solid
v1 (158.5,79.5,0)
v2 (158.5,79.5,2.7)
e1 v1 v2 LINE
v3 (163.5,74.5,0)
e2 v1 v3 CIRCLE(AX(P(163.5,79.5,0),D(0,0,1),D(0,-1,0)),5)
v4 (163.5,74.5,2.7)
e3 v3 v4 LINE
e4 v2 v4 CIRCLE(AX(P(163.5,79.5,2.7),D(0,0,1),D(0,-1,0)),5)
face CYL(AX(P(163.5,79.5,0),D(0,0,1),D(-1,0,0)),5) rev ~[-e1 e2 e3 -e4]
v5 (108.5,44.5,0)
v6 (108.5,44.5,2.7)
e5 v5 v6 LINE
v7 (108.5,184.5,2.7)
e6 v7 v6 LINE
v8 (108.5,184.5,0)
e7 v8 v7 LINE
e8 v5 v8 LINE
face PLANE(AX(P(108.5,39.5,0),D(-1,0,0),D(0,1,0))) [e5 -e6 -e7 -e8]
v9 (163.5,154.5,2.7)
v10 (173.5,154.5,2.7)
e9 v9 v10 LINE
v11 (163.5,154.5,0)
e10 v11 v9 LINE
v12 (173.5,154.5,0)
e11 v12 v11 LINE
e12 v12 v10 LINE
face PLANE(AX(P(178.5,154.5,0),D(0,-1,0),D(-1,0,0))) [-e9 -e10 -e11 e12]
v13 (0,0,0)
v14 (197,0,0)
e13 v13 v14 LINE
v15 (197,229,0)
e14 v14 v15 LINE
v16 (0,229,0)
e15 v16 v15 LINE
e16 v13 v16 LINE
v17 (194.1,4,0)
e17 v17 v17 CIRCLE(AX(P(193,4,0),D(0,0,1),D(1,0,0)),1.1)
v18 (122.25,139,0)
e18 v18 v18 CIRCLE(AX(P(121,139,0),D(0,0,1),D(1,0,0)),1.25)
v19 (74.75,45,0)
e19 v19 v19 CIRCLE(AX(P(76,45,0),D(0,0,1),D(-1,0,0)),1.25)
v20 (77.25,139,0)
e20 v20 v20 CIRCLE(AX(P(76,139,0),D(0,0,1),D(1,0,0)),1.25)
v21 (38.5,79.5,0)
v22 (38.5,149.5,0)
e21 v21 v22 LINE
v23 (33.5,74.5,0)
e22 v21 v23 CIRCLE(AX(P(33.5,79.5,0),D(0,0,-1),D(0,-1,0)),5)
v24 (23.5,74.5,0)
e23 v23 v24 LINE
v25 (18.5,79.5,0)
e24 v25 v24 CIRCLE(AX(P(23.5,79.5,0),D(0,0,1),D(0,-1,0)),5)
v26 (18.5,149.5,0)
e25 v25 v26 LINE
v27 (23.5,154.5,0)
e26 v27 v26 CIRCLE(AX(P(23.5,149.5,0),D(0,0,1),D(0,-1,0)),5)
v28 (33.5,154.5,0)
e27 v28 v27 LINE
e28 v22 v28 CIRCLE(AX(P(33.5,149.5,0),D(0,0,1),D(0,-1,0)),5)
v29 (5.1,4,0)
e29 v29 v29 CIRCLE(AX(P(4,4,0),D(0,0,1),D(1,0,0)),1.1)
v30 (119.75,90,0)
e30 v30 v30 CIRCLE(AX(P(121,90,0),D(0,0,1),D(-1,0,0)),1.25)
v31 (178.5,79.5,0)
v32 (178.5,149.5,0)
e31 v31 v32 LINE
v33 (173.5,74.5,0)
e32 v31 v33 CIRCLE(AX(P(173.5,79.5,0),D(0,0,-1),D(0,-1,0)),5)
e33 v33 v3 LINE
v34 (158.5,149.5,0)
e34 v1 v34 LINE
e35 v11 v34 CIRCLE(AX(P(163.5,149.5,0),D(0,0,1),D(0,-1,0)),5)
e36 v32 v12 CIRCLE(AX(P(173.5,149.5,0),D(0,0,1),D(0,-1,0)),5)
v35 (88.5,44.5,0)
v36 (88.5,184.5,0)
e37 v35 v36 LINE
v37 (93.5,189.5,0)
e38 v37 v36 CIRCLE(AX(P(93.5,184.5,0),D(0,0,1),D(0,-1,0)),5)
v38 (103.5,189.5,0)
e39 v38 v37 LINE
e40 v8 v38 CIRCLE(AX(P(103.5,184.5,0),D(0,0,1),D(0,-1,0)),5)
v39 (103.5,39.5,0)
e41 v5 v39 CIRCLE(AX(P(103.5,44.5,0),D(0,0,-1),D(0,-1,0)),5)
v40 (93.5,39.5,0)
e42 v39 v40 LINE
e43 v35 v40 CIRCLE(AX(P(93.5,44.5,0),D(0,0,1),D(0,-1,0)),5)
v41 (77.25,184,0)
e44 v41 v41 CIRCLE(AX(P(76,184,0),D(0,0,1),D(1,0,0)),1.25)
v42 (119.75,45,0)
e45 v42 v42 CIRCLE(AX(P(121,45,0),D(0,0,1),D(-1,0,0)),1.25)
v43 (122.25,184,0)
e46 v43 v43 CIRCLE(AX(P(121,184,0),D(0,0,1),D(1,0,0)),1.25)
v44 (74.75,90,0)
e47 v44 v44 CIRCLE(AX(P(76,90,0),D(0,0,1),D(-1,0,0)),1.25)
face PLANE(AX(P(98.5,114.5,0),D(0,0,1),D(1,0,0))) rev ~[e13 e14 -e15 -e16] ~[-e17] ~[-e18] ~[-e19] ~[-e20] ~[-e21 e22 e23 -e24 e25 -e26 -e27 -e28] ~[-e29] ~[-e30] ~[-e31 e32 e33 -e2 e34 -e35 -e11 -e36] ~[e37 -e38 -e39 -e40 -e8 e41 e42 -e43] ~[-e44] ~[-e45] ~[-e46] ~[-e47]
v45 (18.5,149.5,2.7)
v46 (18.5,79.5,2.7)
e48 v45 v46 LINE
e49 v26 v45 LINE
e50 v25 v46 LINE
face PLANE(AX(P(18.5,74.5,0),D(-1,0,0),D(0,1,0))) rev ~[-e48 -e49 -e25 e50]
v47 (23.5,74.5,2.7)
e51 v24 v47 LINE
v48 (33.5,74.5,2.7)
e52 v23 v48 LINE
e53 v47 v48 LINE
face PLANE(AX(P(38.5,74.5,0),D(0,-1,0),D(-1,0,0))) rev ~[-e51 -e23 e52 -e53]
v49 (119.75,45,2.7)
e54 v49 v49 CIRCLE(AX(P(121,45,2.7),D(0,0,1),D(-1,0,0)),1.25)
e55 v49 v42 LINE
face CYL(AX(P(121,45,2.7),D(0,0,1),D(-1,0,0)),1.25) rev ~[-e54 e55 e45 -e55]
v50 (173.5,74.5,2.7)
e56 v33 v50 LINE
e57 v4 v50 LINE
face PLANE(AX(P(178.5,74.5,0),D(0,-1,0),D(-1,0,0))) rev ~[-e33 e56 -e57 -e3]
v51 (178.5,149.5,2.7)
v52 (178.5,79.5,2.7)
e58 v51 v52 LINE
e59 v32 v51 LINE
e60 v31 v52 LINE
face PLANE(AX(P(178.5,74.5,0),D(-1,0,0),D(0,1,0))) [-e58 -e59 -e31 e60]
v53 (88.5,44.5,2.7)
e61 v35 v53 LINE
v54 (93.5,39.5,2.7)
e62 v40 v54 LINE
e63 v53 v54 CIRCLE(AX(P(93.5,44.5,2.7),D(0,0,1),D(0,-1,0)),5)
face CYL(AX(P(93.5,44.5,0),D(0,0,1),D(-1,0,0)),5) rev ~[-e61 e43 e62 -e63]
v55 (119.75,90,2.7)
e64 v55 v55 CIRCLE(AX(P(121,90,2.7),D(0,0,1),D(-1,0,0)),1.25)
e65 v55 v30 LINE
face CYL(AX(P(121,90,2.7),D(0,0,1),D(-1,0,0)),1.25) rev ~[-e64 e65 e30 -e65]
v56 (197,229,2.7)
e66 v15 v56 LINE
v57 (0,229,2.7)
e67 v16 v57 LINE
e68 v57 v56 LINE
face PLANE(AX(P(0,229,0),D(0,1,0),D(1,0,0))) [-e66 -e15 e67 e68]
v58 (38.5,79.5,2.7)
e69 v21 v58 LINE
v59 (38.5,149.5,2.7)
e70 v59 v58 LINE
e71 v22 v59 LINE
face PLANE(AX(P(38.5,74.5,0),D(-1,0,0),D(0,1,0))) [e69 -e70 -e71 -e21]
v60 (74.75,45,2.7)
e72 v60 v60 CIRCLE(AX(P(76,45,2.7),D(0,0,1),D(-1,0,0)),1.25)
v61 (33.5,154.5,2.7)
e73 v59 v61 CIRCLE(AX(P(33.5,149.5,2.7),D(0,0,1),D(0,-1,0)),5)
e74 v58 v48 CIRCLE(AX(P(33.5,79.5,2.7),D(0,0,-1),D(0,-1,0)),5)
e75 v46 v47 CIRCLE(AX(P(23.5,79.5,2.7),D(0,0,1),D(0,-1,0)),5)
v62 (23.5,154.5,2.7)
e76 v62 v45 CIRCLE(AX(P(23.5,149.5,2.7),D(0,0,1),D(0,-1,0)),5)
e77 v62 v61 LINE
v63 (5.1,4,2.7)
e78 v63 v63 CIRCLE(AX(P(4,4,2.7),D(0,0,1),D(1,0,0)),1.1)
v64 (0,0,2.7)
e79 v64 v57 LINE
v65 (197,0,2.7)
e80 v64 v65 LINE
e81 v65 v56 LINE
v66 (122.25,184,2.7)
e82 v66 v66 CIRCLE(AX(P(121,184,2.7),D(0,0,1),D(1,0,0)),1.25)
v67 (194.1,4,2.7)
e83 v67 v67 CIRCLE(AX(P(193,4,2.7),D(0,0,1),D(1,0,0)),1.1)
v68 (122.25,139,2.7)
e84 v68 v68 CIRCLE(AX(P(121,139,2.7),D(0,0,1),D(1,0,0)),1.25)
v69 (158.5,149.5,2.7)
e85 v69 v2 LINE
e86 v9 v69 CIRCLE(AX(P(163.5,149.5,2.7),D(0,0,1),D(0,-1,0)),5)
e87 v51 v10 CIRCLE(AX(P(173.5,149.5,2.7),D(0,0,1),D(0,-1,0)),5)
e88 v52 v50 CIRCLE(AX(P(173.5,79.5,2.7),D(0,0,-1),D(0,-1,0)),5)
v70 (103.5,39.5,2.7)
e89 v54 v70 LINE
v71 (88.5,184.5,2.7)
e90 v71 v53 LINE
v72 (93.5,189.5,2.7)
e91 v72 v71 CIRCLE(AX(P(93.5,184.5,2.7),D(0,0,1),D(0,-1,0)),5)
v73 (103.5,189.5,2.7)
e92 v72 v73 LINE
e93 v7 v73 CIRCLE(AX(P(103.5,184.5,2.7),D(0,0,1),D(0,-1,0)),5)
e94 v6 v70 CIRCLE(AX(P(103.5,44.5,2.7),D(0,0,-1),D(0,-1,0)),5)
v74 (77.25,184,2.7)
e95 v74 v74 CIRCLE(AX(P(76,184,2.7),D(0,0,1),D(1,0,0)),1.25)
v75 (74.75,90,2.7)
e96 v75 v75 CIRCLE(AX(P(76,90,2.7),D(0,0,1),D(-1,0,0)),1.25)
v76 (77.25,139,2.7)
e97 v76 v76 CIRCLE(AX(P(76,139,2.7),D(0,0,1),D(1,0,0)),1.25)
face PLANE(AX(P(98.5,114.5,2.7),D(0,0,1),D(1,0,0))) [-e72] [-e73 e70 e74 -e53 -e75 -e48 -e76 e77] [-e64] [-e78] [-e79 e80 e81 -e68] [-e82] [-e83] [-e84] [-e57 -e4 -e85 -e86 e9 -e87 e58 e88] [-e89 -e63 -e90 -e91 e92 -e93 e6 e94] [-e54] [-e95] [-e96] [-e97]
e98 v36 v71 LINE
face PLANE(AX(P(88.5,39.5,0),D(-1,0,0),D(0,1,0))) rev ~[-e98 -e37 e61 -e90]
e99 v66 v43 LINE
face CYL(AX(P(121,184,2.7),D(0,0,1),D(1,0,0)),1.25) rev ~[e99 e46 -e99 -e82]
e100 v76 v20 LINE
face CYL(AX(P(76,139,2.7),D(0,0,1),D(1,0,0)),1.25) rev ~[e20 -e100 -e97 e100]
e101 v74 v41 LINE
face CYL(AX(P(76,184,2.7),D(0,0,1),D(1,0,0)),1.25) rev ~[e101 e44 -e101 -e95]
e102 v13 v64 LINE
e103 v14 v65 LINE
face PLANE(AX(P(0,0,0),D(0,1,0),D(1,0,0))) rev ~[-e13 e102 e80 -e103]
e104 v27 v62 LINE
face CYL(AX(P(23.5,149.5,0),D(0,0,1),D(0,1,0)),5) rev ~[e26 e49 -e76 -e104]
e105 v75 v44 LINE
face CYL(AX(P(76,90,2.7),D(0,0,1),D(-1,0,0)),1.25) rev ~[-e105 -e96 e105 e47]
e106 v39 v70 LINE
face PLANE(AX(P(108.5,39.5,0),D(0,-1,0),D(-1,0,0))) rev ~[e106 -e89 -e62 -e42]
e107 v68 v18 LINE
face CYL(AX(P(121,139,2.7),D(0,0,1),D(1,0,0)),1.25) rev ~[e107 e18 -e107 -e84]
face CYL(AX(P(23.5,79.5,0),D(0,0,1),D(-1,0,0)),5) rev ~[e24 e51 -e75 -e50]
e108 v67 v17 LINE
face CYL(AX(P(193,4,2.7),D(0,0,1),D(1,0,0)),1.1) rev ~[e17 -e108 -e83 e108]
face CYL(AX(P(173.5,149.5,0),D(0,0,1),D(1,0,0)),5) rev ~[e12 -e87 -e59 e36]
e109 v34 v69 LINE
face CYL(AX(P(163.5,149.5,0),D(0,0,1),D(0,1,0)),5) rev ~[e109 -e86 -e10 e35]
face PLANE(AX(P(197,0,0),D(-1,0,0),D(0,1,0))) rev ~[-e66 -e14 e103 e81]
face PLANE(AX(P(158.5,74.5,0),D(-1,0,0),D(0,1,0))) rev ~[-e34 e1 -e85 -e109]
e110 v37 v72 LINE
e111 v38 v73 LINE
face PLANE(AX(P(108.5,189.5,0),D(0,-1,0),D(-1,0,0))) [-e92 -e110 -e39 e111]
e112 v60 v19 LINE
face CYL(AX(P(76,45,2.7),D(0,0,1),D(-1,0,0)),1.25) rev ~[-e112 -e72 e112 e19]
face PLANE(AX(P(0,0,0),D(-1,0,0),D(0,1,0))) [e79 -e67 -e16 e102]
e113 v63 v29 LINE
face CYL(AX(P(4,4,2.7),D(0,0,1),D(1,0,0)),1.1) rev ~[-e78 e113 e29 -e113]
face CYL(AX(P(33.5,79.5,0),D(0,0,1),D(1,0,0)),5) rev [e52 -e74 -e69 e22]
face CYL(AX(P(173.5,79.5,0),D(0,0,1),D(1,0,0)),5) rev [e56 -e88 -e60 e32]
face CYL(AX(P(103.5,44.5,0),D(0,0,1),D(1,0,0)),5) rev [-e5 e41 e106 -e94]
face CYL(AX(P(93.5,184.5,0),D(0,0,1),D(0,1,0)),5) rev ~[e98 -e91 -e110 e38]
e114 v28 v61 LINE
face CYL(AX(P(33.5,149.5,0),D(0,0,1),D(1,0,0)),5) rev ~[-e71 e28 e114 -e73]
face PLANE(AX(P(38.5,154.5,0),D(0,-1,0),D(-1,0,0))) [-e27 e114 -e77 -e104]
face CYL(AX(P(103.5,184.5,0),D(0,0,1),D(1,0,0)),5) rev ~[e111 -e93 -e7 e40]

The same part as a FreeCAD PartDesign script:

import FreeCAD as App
import Part
import Sketcher
from FreeCAD import Vector
Q = App.Units.Quantity


def edges_at(feature, points):
    """Names of the edges that pass closest to the given points."""
    edges = feature.Shape.Edges
    near = lambda p: min(range(len(edges)), key=lambda i: edges[i].distToShape(Part.Vertex(*p))[0])
    return sorted({f"Edge{near(p) + 1}" for p in points})

doc = App.newDocument("Part")
body = doc.addObject("PartDesign::Body", "Body")

# Sketch on XY plane
sketch1 = body.newObject("Sketcher::SketchObject", "Sketch")
sketch1.AttachmentSupport = (doc.getObject("XY_Plane"), [""])
sketch1.MapMode = "FlatFace"
sketch1.addGeometry([
    Part.LineSegment(Vector(0, 229, 0), Vector(0, 0, 0)),
    Part.LineSegment(Vector(0, 0, 0), Vector(197, 0, 0)),
    Part.LineSegment(Vector(197, 0, 0), Vector(197, 229, 0)),
    Part.LineSegment(Vector(197, 229, 0), Vector(0, 229, 0)),
], False)
sketch1.addConstraint([
    Sketcher.Constraint("Coincident", 0, 2, 1, 1),
    Sketcher.Constraint("Coincident", 1, 2, 2, 1),
    Sketcher.Constraint("Coincident", 2, 2, 3, 1),
    Sketcher.Constraint("Coincident", 3, 2, 0, 1),
    Sketcher.Constraint("Vertical", 0),
    Sketcher.Constraint("Horizontal", 1),
    Sketcher.Constraint("Vertical", 2),
    Sketcher.Constraint("Horizontal", 3),
    Sketcher.Constraint("Coincident", 0, 2, -1, 1),
    Sketcher.Constraint("DistanceX", 1, 1, 1, 2, Q("197 mm")),
    Sketcher.Constraint("DistanceY", 0, 2, 0, 1, Q("229 mm")),
])
pad1 = body.newObject("PartDesign::Pad", "Pad")
pad1.Profile = sketch1
pad1.Length = 2.7

# Sketch on XY plane
sketch2 = body.newObject("Sketcher::SketchObject", "Sketch001")
sketch2.AttachmentSupport = (doc.getObject("XY_Plane"), [""])
sketch2.MapMode = "FlatFace"
sketch2.AttachmentOffset = App.Placement(Vector(0, 0, 2.7), App.Rotation())
sketch2.addGeometry([
    Part.Circle(Vector(4, 4, 0), Vector(0, 0, 1), 1.1),
    Part.Circle(Vector(193, 4, 0), Vector(0, 0, 1), 1.1),
], False)
sketch2.addConstraint([
    Sketcher.Constraint("Equal", 0, 1),
    Sketcher.Constraint("Horizontal", 0, 3, 1, 3),
    Sketcher.Constraint("Diameter", 0, Q("2.2 mm")),
    Sketcher.Constraint("DistanceX", -1, 1, 0, 3, Q("4 mm")),
    Sketcher.Constraint("DistanceY", -1, 1, 0, 3, Q("4 mm")),
    Sketcher.Constraint("DistanceX", -1, 1, 1, 3, Q("193 mm")),
])
pocket1 = body.newObject("PartDesign::Pocket", "Pocket")
pocket1.Profile = sketch2
pocket1.Length = 2.85

# Sketch on XY plane
sketch3 = body.newObject("Sketcher::SketchObject", "Sketch002")
sketch3.AttachmentSupport = (doc.getObject("XY_Plane"), [""])
sketch3.MapMode = "FlatFace"
sketch3.addGeometry([
    Part.LineSegment(Vector(178, 154, 0), Vector(178, 74, 0)),  # 0
    Part.LineSegment(Vector(178, 74, 0), Vector(158, 74, 0)),  # 1
    Part.LineSegment(Vector(158, 74, 0), Vector(158, 154, 0)),  # 2
    Part.LineSegment(Vector(158, 154, 0), Vector(178, 154, 0)),  # 3
    Part.LineSegment(Vector(38, 154, 0), Vector(38, 74, 0)),  # 4
    Part.LineSegment(Vector(38, 74, 0), Vector(18, 74, 0)),  # 5
    Part.LineSegment(Vector(18, 74, 0), Vector(18, 154, 0)),  # 6
    Part.LineSegment(Vector(18, 154, 0), Vector(38, 154, 0)),  # 7
    Part.LineSegment(Vector(108, 190, 0), Vector(108, 40, 0)),  # 8
    Part.LineSegment(Vector(108, 40, 0), Vector(88, 40, 0)),  # 9
    Part.LineSegment(Vector(88, 40, 0), Vector(88, 190, 0)),  # 10
    Part.LineSegment(Vector(88, 190, 0), Vector(108, 190, 0)),  # 11
], False)
sketch3.addConstraint([
    Sketcher.Constraint("Coincident", 0, 2, 1, 1),
    Sketcher.Constraint("Coincident", 1, 2, 2, 1),
    Sketcher.Constraint("Coincident", 2, 2, 3, 1),
    Sketcher.Constraint("Coincident", 3, 2, 0, 1),
    Sketcher.Constraint("Coincident", 4, 2, 5, 1),
    Sketcher.Constraint("Coincident", 5, 2, 6, 1),
    Sketcher.Constraint("Coincident", 6, 2, 7, 1),
    Sketcher.Constraint("Coincident", 7, 2, 4, 1),
    Sketcher.Constraint("Coincident", 8, 2, 9, 1),
    Sketcher.Constraint("Coincident", 9, 2, 10, 1),
    Sketcher.Constraint("Coincident", 10, 2, 11, 1),
    Sketcher.Constraint("Coincident", 11, 2, 8, 1),
    Sketcher.Constraint("Vertical", 0),
    Sketcher.Constraint("Horizontal", 1),
    Sketcher.Constraint("Vertical", 2),
    Sketcher.Constraint("Horizontal", 3),
    Sketcher.Constraint("Vertical", 4),
    Sketcher.Constraint("Horizontal", 5),
    Sketcher.Constraint("Vertical", 6),
    Sketcher.Constraint("Horizontal", 7),
    Sketcher.Constraint("Vertical", 8),
    Sketcher.Constraint("Horizontal", 9),
    Sketcher.Constraint("Vertical", 10),
    Sketcher.Constraint("Horizontal", 11),
    Sketcher.Constraint("Horizontal", 1, 2, 4, 2),
    Sketcher.Constraint("Horizontal", 3, 2, 6, 2),
    Sketcher.Constraint("Equal", 3, 5),
    Sketcher.Constraint("Equal", 7, 9),
    Sketcher.Constraint("DistanceX", 1, 2, 1, 1, Q("20 mm")),
    Sketcher.Constraint("DistanceY", 0, 2, 0, 1, Q("80 mm")),
    Sketcher.Constraint("DistanceY", 8, 2, 8, 1, Q("150 mm")),
    Sketcher.Constraint("DistanceX", 4, 2, 1, 2, Q("120 mm")),
    Sketcher.Constraint("DistanceX", 8, 2, 1, 2, Q("50 mm")),
    Sketcher.Constraint("DistanceY", 8, 2, 1, 2, Q("35 mm")),
    Sketcher.Constraint("DistanceX", -1, 1, 0, 2, Q("178.5 mm")),
    Sketcher.Constraint("DistanceY", -1, 1, 0, 2, Q("74.5 mm")),
])
pocket2 = body.newObject("PartDesign::Pocket", "Pocket001")
pocket2.Profile = sketch3
pocket2.Length = 10
pocket2.Reversed = True
doc.recompute()

fillet = body.newObject("PartDesign::Fillet", "Fillet")
fillet.Base = (pocket2, edges_at(pocket2, [
    (178.5, 74.5, 1.35),
    (178.5, 154.5, 1.35),
    (158.5, 154.5, 1.35),
    (158.5, 74.5, 1.35),
    (38.5, 74.5, 1.35),
    (38.5, 154.5, 1.35),
    (18.5, 154.5, 1.35),
    (18.5, 74.5, 1.35),
    (108.5, 39.5, 1.35),
    (108.5, 189.5, 1.35),
    (88.5, 189.5, 1.35),
    (88.5, 39.5, 1.35),
]))
fillet.Radius = 5

# Sketch on XY plane
sketch4 = body.newObject("Sketcher::SketchObject", "Sketch003")
sketch4.AttachmentSupport = (doc.getObject("XY_Plane"), [""])
sketch4.MapMode = "FlatFace"
sketch4.AttachmentOffset = App.Placement(Vector(0, 0, 2.7), App.Rotation())
sketch4.addGeometry([
    Part.Circle(Vector(76, 184, 0), Vector(0, 0, 1), 1.2),  # 0
    Part.Circle(Vector(121, 184, 0), Vector(0, 0, 1), 1.2),  # 1
    Part.Circle(Vector(76, 139, 0), Vector(0, 0, 1), 1.2),  # 2
    Part.Circle(Vector(121, 139, 0), Vector(0, 0, 1), 1.2),  # 3
    Part.Circle(Vector(121, 90, 0), Vector(0, 0, 1), 1.2),  # 4
    Part.Circle(Vector(76, 90, 0), Vector(0, 0, 1), 1.2),  # 5
    Part.Circle(Vector(121, 45, 0), Vector(0, 0, 1), 1.2),  # 6
    Part.Circle(Vector(76, 45, 0), Vector(0, 0, 1), 1.2),  # 7
], False)
sketch4.addConstraint([
    Sketcher.Constraint("Equal", 0, 1),
    Sketcher.Constraint("Equal", 1, 2),
    Sketcher.Constraint("Equal", 2, 3),
    Sketcher.Constraint("Equal", 3, 4),
    Sketcher.Constraint("Equal", 4, 5),
    Sketcher.Constraint("Equal", 5, 6),
    Sketcher.Constraint("Equal", 6, 7),
    Sketcher.Constraint("Horizontal", 0, 3, 1, 3),
    Sketcher.Constraint("Horizontal", 2, 3, 3, 3),
    Sketcher.Constraint("Horizontal", 4, 3, 5, 3),
    Sketcher.Constraint("Horizontal", 6, 3, 7, 3),
    Sketcher.Constraint("Vertical", 0, 3, 2, 3),
    Sketcher.Constraint("Vertical", 1, 3, 3, 3),
    Sketcher.Constraint("Vertical", 3, 3, 4, 3),
    Sketcher.Constraint("Vertical", 2, 3, 5, 3),
    Sketcher.Constraint("Vertical", 4, 3, 6, 3),
    Sketcher.Constraint("Vertical", 5, 3, 7, 3),
    Sketcher.Constraint("Diameter", 0, Q("2.5 mm")),
    Sketcher.Constraint("DistanceX", -1, 1, 0, 3, Q("76 mm")),
    Sketcher.Constraint("DistanceY", -1, 1, 0, 3, Q("184 mm")),
    Sketcher.Constraint("DistanceX", -1, 1, 1, 3, Q("121 mm")),
    Sketcher.Constraint("DistanceY", -1, 1, 2, 3, Q("139 mm")),
    Sketcher.Constraint("DistanceY", -1, 1, 4, 3, Q("90 mm")),
    Sketcher.Constraint("DistanceY", -1, 1, 6, 3, Q("45 mm")),
])
pocket3 = body.newObject("PartDesign::Pocket", "Pocket002")
pocket3.Profile = sketch4
pocket3.Length = 10

doc.recompute()
